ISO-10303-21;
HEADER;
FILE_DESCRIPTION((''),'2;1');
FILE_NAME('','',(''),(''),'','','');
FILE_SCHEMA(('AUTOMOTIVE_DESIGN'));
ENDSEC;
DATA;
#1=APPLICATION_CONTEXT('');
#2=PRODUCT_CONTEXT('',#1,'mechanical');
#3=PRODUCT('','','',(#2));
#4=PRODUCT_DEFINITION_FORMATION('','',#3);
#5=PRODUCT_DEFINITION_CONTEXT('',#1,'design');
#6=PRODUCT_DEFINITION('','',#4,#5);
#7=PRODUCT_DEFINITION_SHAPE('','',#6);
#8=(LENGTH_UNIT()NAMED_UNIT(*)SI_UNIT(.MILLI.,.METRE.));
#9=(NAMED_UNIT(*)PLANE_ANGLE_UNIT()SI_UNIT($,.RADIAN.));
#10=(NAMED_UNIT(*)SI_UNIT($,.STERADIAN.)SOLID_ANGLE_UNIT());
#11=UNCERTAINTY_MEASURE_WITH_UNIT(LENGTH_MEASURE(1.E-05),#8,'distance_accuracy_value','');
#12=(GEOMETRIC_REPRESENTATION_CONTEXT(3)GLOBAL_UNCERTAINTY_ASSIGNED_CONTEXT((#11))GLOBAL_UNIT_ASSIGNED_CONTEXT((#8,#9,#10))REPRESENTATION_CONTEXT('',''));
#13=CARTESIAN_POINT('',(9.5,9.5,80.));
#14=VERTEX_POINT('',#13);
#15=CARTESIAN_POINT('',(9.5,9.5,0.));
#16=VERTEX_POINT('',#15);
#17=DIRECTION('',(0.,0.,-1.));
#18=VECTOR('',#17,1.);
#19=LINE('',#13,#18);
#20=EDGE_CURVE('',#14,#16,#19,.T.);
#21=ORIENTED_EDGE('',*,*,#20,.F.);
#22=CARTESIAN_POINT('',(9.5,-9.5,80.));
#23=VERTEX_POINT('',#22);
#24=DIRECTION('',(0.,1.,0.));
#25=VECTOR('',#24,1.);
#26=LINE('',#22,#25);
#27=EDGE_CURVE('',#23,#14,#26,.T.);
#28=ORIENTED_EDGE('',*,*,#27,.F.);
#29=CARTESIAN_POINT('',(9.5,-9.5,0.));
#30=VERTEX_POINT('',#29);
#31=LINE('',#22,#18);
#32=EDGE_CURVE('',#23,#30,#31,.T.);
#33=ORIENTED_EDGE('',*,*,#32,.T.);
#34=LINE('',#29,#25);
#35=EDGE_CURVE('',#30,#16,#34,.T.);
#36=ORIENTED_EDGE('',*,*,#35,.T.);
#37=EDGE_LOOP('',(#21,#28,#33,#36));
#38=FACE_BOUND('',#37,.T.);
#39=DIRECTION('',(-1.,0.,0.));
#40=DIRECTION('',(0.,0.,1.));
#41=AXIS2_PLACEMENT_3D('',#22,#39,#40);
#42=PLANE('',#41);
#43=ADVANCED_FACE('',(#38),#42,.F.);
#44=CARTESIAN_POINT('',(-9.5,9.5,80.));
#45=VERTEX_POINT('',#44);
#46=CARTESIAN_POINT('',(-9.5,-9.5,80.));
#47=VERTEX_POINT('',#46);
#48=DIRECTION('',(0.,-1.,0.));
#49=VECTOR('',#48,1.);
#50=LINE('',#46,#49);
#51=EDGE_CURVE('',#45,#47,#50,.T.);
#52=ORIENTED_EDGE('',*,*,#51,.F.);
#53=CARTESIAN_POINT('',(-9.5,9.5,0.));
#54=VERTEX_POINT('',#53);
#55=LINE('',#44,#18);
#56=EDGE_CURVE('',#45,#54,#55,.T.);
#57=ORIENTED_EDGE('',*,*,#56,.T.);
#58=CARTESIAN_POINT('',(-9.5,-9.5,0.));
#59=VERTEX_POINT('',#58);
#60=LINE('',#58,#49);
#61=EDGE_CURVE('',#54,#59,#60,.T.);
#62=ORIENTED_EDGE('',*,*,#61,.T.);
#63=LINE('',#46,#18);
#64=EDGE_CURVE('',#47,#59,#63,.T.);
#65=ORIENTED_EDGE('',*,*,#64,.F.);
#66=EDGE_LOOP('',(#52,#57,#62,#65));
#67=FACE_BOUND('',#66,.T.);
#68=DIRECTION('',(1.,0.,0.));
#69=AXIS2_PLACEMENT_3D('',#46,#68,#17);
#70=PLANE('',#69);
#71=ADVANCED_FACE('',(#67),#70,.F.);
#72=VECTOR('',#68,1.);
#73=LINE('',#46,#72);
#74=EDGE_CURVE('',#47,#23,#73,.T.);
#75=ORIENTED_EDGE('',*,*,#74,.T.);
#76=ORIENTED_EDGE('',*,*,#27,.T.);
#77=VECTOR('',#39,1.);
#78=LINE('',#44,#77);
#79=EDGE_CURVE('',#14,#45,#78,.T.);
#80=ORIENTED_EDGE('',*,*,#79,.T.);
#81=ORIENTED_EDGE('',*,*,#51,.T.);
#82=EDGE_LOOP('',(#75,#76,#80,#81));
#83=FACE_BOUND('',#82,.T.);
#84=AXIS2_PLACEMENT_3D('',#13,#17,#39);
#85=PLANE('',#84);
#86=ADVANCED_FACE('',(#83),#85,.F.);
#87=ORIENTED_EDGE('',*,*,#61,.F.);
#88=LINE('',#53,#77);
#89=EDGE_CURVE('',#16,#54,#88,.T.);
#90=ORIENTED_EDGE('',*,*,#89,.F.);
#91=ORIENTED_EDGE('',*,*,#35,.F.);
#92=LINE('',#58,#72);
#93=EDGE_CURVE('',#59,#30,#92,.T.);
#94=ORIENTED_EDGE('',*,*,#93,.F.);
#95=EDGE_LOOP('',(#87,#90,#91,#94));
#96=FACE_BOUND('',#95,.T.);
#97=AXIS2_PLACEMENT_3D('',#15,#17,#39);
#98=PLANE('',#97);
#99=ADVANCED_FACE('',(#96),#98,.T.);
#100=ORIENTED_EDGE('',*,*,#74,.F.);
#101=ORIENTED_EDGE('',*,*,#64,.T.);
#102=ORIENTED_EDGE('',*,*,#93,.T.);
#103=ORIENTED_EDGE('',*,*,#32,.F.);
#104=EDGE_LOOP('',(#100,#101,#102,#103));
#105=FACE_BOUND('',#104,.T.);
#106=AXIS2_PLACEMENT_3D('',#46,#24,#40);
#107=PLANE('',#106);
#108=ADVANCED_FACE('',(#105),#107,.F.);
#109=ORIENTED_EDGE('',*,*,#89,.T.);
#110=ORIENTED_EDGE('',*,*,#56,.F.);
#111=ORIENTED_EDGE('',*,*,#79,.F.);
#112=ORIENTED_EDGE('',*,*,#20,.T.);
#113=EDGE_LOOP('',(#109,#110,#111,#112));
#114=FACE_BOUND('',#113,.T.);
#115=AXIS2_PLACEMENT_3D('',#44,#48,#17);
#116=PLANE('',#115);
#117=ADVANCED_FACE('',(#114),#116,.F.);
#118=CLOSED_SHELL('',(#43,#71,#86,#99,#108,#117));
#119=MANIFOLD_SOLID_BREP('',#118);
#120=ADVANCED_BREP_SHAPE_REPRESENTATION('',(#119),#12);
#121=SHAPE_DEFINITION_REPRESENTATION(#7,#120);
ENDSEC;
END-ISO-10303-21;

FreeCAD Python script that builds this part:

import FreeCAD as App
import Part
import Sketcher
from FreeCAD import Vector
Q = App.Units.Quantity

doc = App.newDocument("Part")
body = doc.addObject("PartDesign::Body", "Body")

# Sketch on XY plane
sketch1 = body.newObject("Sketcher::SketchObject", "Sketch")
sketch1.AttachmentSupport = (doc.getObject("XY_Plane"), [""])
sketch1.MapMode = "FlatFace"
sketch1.addGeometry(Part.LineSegment(Vector(-9.5, 9.5, 0), Vector(-9.5, -9.5, 0)), False)
sketch1.addGeometry(Part.LineSegment(Vector(-9.5, -9.5, 0), Vector(9.5, -9.5, 0)), False)
sketch1.addGeometry(Part.LineSegment(Vector(9.5, -9.5, 0), Vector(9.5, 9.5, 0)), False)
sketch1.addGeometry(Part.LineSegment(Vector(9.5, 9.5, 0), Vector(-9.5, 9.5, 0)), False)
sketch1.addConstraint(Sketcher.Constraint("Coincident", 0, 2, 1, 1))
sketch1.addConstraint(Sketcher.Constraint("Coincident", 1, 2, 2, 1))
sketch1.addConstraint(Sketcher.Constraint("Coincident", 2, 2, 3, 1))
sketch1.addConstraint(Sketcher.Constraint("Coincident", 3, 2, 0, 1))
sketch1.addConstraint(Sketcher.Constraint("Vertical", 0))
sketch1.addConstraint(Sketcher.Constraint("Horizontal", 1))
sketch1.addConstraint(Sketcher.Constraint("Vertical", 2))
sketch1.addConstraint(Sketcher.Constraint("Horizontal", 3))
sketch1.addConstraint(Sketcher.Constraint("Symmetric", 0, 2, 2, 2, -1, 1))
sketch1.addConstraint(Sketcher.Constraint("Equal", 3, 0))
sketch1.addConstraint(Sketcher.Constraint("DistanceX", 1, 1, 1, 2, Q("19 mm")))
pad1 = body.newObject("PartDesign::Pad", "Pad")
pad1.Profile = sketch1
pad1.Length = 80

doc.recompute()
